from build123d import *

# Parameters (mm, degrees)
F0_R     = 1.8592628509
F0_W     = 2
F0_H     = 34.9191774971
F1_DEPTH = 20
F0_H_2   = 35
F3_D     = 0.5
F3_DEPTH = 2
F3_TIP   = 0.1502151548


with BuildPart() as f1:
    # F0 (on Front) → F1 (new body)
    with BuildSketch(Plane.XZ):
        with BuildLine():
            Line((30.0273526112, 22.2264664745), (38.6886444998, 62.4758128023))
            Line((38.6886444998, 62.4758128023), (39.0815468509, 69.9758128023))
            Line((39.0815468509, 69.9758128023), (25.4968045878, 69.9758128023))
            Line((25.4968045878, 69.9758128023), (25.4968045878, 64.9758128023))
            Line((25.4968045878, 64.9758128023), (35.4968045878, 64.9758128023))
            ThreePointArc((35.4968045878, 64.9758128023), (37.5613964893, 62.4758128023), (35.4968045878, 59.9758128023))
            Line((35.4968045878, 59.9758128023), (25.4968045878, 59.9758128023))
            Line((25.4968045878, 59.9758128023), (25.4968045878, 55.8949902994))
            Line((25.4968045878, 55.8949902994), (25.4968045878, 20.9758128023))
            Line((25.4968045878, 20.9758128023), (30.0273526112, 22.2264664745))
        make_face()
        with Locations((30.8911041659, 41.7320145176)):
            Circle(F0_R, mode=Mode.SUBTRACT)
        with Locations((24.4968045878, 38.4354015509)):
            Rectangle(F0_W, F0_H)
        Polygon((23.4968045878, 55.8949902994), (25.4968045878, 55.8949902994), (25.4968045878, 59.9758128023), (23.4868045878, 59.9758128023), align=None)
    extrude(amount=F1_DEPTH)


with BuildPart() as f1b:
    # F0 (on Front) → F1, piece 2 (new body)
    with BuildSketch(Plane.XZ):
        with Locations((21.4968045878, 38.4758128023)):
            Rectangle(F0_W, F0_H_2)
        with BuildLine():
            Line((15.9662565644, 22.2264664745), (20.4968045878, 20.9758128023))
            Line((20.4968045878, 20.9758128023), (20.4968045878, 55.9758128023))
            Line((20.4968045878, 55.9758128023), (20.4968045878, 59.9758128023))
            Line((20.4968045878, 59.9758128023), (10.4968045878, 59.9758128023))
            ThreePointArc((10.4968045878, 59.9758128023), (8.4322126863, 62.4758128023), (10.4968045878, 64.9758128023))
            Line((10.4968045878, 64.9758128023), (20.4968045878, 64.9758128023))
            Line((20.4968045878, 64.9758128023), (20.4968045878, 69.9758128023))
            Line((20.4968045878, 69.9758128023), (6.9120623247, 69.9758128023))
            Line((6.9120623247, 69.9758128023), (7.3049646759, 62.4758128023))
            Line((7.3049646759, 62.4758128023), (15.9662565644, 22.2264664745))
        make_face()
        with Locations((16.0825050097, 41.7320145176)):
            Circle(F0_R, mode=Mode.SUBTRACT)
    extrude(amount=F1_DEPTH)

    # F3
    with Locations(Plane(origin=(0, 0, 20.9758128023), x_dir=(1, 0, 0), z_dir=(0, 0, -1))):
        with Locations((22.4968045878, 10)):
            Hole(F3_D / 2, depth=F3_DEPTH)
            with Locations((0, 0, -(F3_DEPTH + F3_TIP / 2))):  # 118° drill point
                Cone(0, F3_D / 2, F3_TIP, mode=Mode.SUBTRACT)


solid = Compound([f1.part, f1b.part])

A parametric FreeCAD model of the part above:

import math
import FreeCAD as App
import Part
import Sketcher
from FreeCAD import Vector
Q = App.Units.Quantity

doc = App.newDocument("Part")
params = doc.addObject("Spreadsheet::Sheet", "Params")
for row, (alias, value) in enumerate([
    ("sketch1_width", "10 mm"),
    ("sketch1_width2", "2 mm"),
    ("sketch1_height", "5 mm"),
    ("sketch1_length", "4.7 mm"),
    ("sketch1_width3", "12.01 mm"),
    ("pad1_length", "20 mm"),
    ("sketch2_width", "2 mm"),
    ("sketch2_width2", "10 mm"),
    ("sketch2_height", "35 mm"),
    ("sketch2_height2", "4 mm"),
    ("sketch2_height3", "5 mm"),
    ("pad2_length", "20 mm"),
    ("sketch3_diameter", "0.5 mm"),
    ("hole_diameter", "0.5 mm"),
    ("hole_depth", "2 mm"),
], start=1):
    params.set(f"A{row}", alias)
    params.set(f"B{row}", "=" + value)
    params.setAlias(f"B{row}", alias)

body = doc.addObject("PartDesign::Body", "Body")

# Sketch on XZ plane
sketch1 = body.newObject("Sketcher::SketchObject", "Sketch")
sketch1.AttachmentSupport = (doc.getObject("XZ_Plane"), [""])
sketch1.MapMode = "FlatFace"
sketch1.addGeometry(Part.LineSegment(Vector(30, 22.2, 0), Vector(38.7, 62.5, 0)), False)
sketch1.addGeometry(Part.LineSegment(Vector(38.7, 62.5, 0), Vector(39.1, 70, 0)), False)
sketch1.addGeometry(Part.LineSegment(Vector(39.1, 70, 0), Vector(25.5, 70, 0)), False)
sketch1.addGeometry(Part.LineSegment(Vector(25.5, 70, 0), Vector(25.5, 65, 0)), False)
sketch1.addGeometry(Part.LineSegment(Vector(25.5, 65, 0), Vector(35.5, 65, 0)), False)
sketch1.addGeometry(Part.ArcOfCircle(Part.Circle(Vector(35, 62.5, 0), Vector(0, 0, 1), 2.5), math.radians(-79), math.radians(79)), False)
sketch1.addGeometry(Part.LineSegment(Vector(35.5, 60, 0), Vector(23.5, 60, 0)), False)
sketch1.addGeometry(Part.LineSegment(Vector(23.5, 60, 0), Vector(23.5, 55.9, 0)), False)
sketch1.addGeometry(Part.LineSegment(Vector(23.5, 55.9, 0), Vector(23.5, 21, 0)), False)
sketch1.addGeometry(Part.LineSegment(Vector(23.5, 21, 0), Vector(25.5, 21, 0)), False)
sketch1.addGeometry(Part.LineSegment(Vector(25.5, 21, 0), Vector(30, 22.2, 0)), False)
sketch1.addGeometry(Part.Circle(Vector(30.9, 41.7, 0), Vector(0, 0, 1), 1.9), False)
sketch1.addConstraint(Sketcher.Constraint("Coincident", 0, 2, 1, 1))
sketch1.addConstraint(Sketcher.Constraint("Coincident", 1, 2, 2, 1))
sketch1.addConstraint(Sketcher.Constraint("Coincident", 2, 2, 3, 1))
sketch1.addConstraint(Sketcher.Constraint("Coincident", 3, 2, 4, 1))
sketch1.addConstraint(Sketcher.Constraint("Coincident", 4, 2, 5, 2))
sketch1.addConstraint(Sketcher.Constraint("Coincident", 5, 1, 6, 1))
sketch1.addConstraint(Sketcher.Constraint("Coincident", 6, 2, 7, 1))
sketch1.addConstraint(Sketcher.Constraint("Coincident", 7, 2, 8, 1))
sketch1.addConstraint(Sketcher.Constraint("Coincident", 8, 2, 9, 1))
sketch1.addConstraint(Sketcher.Constraint("Coincident", 9, 2, 10, 1))
sketch1.addConstraint(Sketcher.Constraint("Coincident", 10, 2, 0, 1))
sketch1.addConstraint(Sketcher.Constraint("Horizontal", 2))
sketch1.addConstraint(Sketcher.Constraint("Vertical", 3))
sketch1.addConstraint(Sketcher.Constraint("Horizontal", 4))
sketch1.addConstraint(Sketcher.Constraint("Horizontal", 6))
sketch1.addConstraint(Sketcher.Constraint("Vertical", 8))
sketch1.addConstraint(Sketcher.Constraint("Horizontal", 9))
sketch1.addConstraint(Sketcher.Constraint("Horizontal", 5, 3, 0, 2))
sketch1.addConstraint(Sketcher.Constraint("Vertical", 4, 2, 5, 1))
sketch1.addConstraint(Sketcher.Constraint("Vertical", 3, 2, 9, 2))
sketch1.addConstraint(Sketcher.Constraint("DistanceX", 4, 1, 4, 2, Q("10 mm")))
sketch1.addConstraint(Sketcher.Constraint("DistanceX", 9, 1, 9, 2, Q("2 mm")))
sketch1.addConstraint(Sketcher.Constraint("DistanceY", 3, 2, 3, 1, Q("5 mm")))
sketch1.addConstraint(Sketcher.Constraint("DistanceY", 5, 1, 4, 2, Q("5 mm")))
sketch1.addConstraint(Sketcher.Constraint("DistanceY", 8, 2, 6, 2, Q("39 mm")))
sketch1.addConstraint(Sketcher.Constraint("Distance", 10, Q("4.7 mm")))
sketch1.addConstraint(Sketcher.Constraint("DistanceX", 6, 2, 6, 1, Q("12.01 mm")))
sketch1.addConstraint(Sketcher.Constraint("Diameter", 11, Q("3.718526 mm")))
sketch1.addConstraint(Sketcher.Constraint("Radius", 5, Q("2.545912 mm")))
sketch1.addConstraint(Sketcher.Constraint("DistanceY", 11, 3, 5, 3, Q("20.743798 mm")))
sketch1.addConstraint(Sketcher.Constraint("DistanceX", 2, 2, 11, 3, Q("5.3943 mm")))
sketch1.addConstraint(Sketcher.Constraint("DistanceX", 2, 2, 2, 1, Q("13.584742 mm")))
sketch1.addConstraint(Sketcher.Constraint("DistanceY", 8, 2, 8, 1, Q("34.919177 mm")))
sketch1.addConstraint(Sketcher.Constraint("DistanceY", -1, 1, 7, 2, Q("55.89499 mm")))
sketch1.addConstraint(Sketcher.Constraint("DistanceX", 5, 3, 0, 2, Q("3.67316 mm")))
sketch1.addConstraint(Sketcher.Constraint("DistanceX", 9, 2, 10, 2, Q("4.530548 mm")))
sketch1.addConstraint(Sketcher.Constraint("DistanceX", -1, 1, 5, 3, Q("35.015484 mm")))
sketch1.setExpression("Constraints[20]", "Params.sketch1_width")
sketch1.setExpression("Constraints[21]", "Params.sketch1_width2")
sketch1.setExpression("Constraints[22]", "Params.sketch1_height")
sketch1.setExpression("Constraints[25]", "Params.sketch1_length")
sketch1.setExpression("Constraints[26]", "Params.sketch1_width3")
pad1 = body.newObject("PartDesign::Pad", "Pad")
pad1.Profile = sketch1
pad1.setExpression("Length", "Params.pad1_length")
body2 = doc.addObject("PartDesign::Body", "Body001")

# Sketch on XZ plane
sketch2 = body2.newObject("Sketcher::SketchObject", "Sketch001")
sketch2.AttachmentSupport = (doc.getObject("XZ_Plane001"), [""])
sketch2.MapMode = "FlatFace"
sketch2.addGeometry(Part.LineSegment(Vector(20.5, 21, 0), Vector(22.5, 21, 0)), False)
sketch2.addGeometry(Part.LineSegment(Vector(22.5, 21, 0), Vector(22.5, 56, 0)), False)
sketch2.addGeometry(Part.LineSegment(Vector(22.5, 56, 0), Vector(20.5, 56, 0)), False)
sketch2.addGeometry(Part.LineSegment(Vector(20.5, 56, 0), Vector(20.5, 60, 0)), False)
sketch2.addGeometry(Part.LineSegment(Vector(20.5, 60, 0), Vector(10.5, 60, 0)), False)
sketch2.addGeometry(Part.ArcOfCircle(Part.Circle(Vector(11, 62.5, 0), Vector(0, 0, 1), 2.5), math.radians(101), math.radians(259)), False)
sketch2.addGeometry(Part.LineSegment(Vector(10.5, 65, 0), Vector(20.5, 65, 0)), False)
sketch2.addGeometry(Part.LineSegment(Vector(20.5, 65, 0), Vector(20.5, 70, 0)), False)
sketch2.addGeometry(Part.LineSegment(Vector(20.5, 70, 0), Vector(6.9, 70, 0)), False)
sketch2.addGeometry(Part.LineSegment(Vector(6.9, 70, 0), Vector(7.3, 62.5, 0)), False)
sketch2.addGeometry(Part.LineSegment(Vector(7.3, 62.5, 0), Vector(16, 22.2, 0)), False)
sketch2.addGeometry(Part.LineSegment(Vector(16, 22.2, 0), Vector(20.5, 21, 0)), False)
sketch2.addGeometry(Part.Circle(Vector(16.1, 41.7, 0), Vector(0, 0, 1), 1.9), False)
sketch2.addConstraint(Sketcher.Constraint("Coincident", 0, 2, 1, 1))
sketch2.addConstraint(Sketcher.Constraint("Coincident", 1, 2, 2, 1))
sketch2.addConstraint(Sketcher.Constraint("Coincident", 2, 2, 3, 1))
sketch2.addConstraint(Sketcher.Constraint("Coincident", 3, 2, 4, 1))
sketch2.addConstraint(Sketcher.Constraint("Coincident", 4, 2, 5, 2))
sketch2.addConstraint(Sketcher.Constraint("Coincident", 5, 1, 6, 1))
sketch2.addConstraint(Sketcher.Constraint("Coincident", 6, 2, 7, 1))
sketch2.addConstraint(Sketcher.Constraint("Coincident", 7, 2, 8, 1))
sketch2.addConstraint(Sketcher.Constraint("Coincident", 8, 2, 9, 1))
sketch2.addConstraint(Sketcher.Constraint("Coincident", 9, 2, 10, 1))
sketch2.addConstraint(Sketcher.Constraint("Coincident", 10, 2, 11, 1))
sketch2.addConstraint(Sketcher.Constraint("Coincident", 11, 2, 0, 1))
sketch2.addConstraint(Sketcher.Constraint("Horizontal", 0))
sketch2.addConstraint(Sketcher.Constraint("Vertical", 1))
sketch2.addConstraint(Sketcher.Constraint("Horizontal", 2))
sketch2.addConstraint(Sketcher.Constraint("Vertical", 3))
sketch2.addConstraint(Sketcher.Constraint("Horizontal", 4))
sketch2.addConstraint(Sketcher.Constraint("Horizontal", 6))
sketch2.addConstraint(Sketcher.Constraint("Vertical", 7))
sketch2.addConstraint(Sketcher.Constraint("Horizontal", 8))
sketch2.addConstraint(Sketcher.Constraint("Horizontal", 5, 3, 9, 2))
sketch2.addConstraint(Sketcher.Constraint("Vertical", 4, 2, 5, 1))
sketch2.addConstraint(Sketcher.Constraint("Vertical", 3, 2, 6, 2))
sketch2.addConstraint(Sketcher.Constraint("Vertical", 7, 2, 11, 2))
sketch2.addConstraint(Sketcher.Constraint("DistanceX", 0, 1, 0, 2, Q("2 mm")))
sketch2.addConstraint(Sketcher.Constraint("DistanceX", 4, 2, 4, 1, Q("10 mm")))
sketch2.addConstraint(Sketcher.Constraint("DistanceY", 1, 1, 1, 2, Q("35 mm")))
sketch2.addConstraint(Sketcher.Constraint("DistanceY", 3, 1, 3, 2, Q("4 mm")))
sketch2.addConstraint(Sketcher.Constraint("DistanceY", 7, 1, 7, 2, Q("5 mm")))
sketch2.addConstraint(Sketcher.Constraint("DistanceY", 4, 2, 5, 1, Q("5 mm")))
sketch2.addConstraint(Sketcher.Constraint("Distance", 11, Q("4.7 mm")))
sketch2.addConstraint(Sketcher.Constraint("Diameter", 12, Q("3.718526 mm")))
sketch2.addConstraint(Sketcher.Constraint("Radius", 5, Q("2.545912 mm")))
sketch2.addConstraint(Sketcher.Constraint("DistanceY", 12, 3, 5, 3, Q("20.743798 mm")))
sketch2.addConstraint(Sketcher.Constraint("DistanceX", 12, 3, 0, 2, Q("6.4143 mm")))
sketch2.addConstraint(Sketcher.Constraint("DistanceX", 8, 2, 8, 1, Q("13.584742 mm")))
sketch2.addConstraint(Sketcher.Constraint("DistanceX", 9, 2, 5, 3, Q("3.67316 mm")))
sketch2.addConstraint(Sketcher.Constraint("DistanceX", 10, 2, 0, 2, Q("6.530548 mm")))
sketch2.addConstraint(Sketcher.Constraint("DistanceX", -1, 1, 5, 3, Q("10.978125 mm")))
sketch2.addConstraint(Sketcher.Constraint("DistanceY", -1, 1, 5, 3, Q("62.475813 mm")))
sketch2.setExpression("Constraints[24]", "Params.sketch2_width")
sketch2.setExpression("Constraints[25]", "Params.sketch2_width2")
sketch2.setExpression("Constraints[26]", "Params.sketch2_height")
sketch2.setExpression("Constraints[27]", "Params.sketch2_height2")
sketch2.setExpression("Constraints[28]", "Params.sketch2_height3")
pad2 = body2.newObject("PartDesign::Pad", "Pad001")
pad2.Profile = sketch2
pad2.setExpression("Length", "Params.pad2_length")

# Sketch on XY plane
sketch3 = body2.newObject("Sketcher::SketchObject", "Sketch002")
sketch3.AttachmentSupport = (doc.getObject("XY_Plane001"), [""])
sketch3.MapMode = "FlatFace"
sketch3.AttachmentOffset = App.Placement(Vector(0, 0, 20.975813), App.Rotation())
sketch3.addGeometry(Part.Circle(Vector(22.5, -10, 0), Vector(0, 0, 1), 0.25), False)
sketch3.addConstraint(Sketcher.Constraint("Diameter", 0, Q("0.5 mm")))
sketch3.addConstraint(Sketcher.Constraint("DistanceY", 0, 3, -1, 1, Q("10 mm")))
sketch3.addConstraint(Sketcher.Constraint("DistanceX", -1, 1, 0, 3, Q("22.496805 mm")))
sketch3.setExpression("Constraints[0]", "Params.sketch3_diameter")
doc.recompute()
hole = body2.newObject("PartDesign::Hole", "Hole")
hole.Profile = sketch3
hole.ThreadType = "None"
hole.setExpression("Diameter", "Params.hole_diameter")
hole.DepthType = "Dimension"
hole.setExpression("Depth", "Params.hole_depth")
hole.DrillPoint = "Angled"
hole.DrillPointAngle = 118
hole.Reversed = True

doc.recompute()
